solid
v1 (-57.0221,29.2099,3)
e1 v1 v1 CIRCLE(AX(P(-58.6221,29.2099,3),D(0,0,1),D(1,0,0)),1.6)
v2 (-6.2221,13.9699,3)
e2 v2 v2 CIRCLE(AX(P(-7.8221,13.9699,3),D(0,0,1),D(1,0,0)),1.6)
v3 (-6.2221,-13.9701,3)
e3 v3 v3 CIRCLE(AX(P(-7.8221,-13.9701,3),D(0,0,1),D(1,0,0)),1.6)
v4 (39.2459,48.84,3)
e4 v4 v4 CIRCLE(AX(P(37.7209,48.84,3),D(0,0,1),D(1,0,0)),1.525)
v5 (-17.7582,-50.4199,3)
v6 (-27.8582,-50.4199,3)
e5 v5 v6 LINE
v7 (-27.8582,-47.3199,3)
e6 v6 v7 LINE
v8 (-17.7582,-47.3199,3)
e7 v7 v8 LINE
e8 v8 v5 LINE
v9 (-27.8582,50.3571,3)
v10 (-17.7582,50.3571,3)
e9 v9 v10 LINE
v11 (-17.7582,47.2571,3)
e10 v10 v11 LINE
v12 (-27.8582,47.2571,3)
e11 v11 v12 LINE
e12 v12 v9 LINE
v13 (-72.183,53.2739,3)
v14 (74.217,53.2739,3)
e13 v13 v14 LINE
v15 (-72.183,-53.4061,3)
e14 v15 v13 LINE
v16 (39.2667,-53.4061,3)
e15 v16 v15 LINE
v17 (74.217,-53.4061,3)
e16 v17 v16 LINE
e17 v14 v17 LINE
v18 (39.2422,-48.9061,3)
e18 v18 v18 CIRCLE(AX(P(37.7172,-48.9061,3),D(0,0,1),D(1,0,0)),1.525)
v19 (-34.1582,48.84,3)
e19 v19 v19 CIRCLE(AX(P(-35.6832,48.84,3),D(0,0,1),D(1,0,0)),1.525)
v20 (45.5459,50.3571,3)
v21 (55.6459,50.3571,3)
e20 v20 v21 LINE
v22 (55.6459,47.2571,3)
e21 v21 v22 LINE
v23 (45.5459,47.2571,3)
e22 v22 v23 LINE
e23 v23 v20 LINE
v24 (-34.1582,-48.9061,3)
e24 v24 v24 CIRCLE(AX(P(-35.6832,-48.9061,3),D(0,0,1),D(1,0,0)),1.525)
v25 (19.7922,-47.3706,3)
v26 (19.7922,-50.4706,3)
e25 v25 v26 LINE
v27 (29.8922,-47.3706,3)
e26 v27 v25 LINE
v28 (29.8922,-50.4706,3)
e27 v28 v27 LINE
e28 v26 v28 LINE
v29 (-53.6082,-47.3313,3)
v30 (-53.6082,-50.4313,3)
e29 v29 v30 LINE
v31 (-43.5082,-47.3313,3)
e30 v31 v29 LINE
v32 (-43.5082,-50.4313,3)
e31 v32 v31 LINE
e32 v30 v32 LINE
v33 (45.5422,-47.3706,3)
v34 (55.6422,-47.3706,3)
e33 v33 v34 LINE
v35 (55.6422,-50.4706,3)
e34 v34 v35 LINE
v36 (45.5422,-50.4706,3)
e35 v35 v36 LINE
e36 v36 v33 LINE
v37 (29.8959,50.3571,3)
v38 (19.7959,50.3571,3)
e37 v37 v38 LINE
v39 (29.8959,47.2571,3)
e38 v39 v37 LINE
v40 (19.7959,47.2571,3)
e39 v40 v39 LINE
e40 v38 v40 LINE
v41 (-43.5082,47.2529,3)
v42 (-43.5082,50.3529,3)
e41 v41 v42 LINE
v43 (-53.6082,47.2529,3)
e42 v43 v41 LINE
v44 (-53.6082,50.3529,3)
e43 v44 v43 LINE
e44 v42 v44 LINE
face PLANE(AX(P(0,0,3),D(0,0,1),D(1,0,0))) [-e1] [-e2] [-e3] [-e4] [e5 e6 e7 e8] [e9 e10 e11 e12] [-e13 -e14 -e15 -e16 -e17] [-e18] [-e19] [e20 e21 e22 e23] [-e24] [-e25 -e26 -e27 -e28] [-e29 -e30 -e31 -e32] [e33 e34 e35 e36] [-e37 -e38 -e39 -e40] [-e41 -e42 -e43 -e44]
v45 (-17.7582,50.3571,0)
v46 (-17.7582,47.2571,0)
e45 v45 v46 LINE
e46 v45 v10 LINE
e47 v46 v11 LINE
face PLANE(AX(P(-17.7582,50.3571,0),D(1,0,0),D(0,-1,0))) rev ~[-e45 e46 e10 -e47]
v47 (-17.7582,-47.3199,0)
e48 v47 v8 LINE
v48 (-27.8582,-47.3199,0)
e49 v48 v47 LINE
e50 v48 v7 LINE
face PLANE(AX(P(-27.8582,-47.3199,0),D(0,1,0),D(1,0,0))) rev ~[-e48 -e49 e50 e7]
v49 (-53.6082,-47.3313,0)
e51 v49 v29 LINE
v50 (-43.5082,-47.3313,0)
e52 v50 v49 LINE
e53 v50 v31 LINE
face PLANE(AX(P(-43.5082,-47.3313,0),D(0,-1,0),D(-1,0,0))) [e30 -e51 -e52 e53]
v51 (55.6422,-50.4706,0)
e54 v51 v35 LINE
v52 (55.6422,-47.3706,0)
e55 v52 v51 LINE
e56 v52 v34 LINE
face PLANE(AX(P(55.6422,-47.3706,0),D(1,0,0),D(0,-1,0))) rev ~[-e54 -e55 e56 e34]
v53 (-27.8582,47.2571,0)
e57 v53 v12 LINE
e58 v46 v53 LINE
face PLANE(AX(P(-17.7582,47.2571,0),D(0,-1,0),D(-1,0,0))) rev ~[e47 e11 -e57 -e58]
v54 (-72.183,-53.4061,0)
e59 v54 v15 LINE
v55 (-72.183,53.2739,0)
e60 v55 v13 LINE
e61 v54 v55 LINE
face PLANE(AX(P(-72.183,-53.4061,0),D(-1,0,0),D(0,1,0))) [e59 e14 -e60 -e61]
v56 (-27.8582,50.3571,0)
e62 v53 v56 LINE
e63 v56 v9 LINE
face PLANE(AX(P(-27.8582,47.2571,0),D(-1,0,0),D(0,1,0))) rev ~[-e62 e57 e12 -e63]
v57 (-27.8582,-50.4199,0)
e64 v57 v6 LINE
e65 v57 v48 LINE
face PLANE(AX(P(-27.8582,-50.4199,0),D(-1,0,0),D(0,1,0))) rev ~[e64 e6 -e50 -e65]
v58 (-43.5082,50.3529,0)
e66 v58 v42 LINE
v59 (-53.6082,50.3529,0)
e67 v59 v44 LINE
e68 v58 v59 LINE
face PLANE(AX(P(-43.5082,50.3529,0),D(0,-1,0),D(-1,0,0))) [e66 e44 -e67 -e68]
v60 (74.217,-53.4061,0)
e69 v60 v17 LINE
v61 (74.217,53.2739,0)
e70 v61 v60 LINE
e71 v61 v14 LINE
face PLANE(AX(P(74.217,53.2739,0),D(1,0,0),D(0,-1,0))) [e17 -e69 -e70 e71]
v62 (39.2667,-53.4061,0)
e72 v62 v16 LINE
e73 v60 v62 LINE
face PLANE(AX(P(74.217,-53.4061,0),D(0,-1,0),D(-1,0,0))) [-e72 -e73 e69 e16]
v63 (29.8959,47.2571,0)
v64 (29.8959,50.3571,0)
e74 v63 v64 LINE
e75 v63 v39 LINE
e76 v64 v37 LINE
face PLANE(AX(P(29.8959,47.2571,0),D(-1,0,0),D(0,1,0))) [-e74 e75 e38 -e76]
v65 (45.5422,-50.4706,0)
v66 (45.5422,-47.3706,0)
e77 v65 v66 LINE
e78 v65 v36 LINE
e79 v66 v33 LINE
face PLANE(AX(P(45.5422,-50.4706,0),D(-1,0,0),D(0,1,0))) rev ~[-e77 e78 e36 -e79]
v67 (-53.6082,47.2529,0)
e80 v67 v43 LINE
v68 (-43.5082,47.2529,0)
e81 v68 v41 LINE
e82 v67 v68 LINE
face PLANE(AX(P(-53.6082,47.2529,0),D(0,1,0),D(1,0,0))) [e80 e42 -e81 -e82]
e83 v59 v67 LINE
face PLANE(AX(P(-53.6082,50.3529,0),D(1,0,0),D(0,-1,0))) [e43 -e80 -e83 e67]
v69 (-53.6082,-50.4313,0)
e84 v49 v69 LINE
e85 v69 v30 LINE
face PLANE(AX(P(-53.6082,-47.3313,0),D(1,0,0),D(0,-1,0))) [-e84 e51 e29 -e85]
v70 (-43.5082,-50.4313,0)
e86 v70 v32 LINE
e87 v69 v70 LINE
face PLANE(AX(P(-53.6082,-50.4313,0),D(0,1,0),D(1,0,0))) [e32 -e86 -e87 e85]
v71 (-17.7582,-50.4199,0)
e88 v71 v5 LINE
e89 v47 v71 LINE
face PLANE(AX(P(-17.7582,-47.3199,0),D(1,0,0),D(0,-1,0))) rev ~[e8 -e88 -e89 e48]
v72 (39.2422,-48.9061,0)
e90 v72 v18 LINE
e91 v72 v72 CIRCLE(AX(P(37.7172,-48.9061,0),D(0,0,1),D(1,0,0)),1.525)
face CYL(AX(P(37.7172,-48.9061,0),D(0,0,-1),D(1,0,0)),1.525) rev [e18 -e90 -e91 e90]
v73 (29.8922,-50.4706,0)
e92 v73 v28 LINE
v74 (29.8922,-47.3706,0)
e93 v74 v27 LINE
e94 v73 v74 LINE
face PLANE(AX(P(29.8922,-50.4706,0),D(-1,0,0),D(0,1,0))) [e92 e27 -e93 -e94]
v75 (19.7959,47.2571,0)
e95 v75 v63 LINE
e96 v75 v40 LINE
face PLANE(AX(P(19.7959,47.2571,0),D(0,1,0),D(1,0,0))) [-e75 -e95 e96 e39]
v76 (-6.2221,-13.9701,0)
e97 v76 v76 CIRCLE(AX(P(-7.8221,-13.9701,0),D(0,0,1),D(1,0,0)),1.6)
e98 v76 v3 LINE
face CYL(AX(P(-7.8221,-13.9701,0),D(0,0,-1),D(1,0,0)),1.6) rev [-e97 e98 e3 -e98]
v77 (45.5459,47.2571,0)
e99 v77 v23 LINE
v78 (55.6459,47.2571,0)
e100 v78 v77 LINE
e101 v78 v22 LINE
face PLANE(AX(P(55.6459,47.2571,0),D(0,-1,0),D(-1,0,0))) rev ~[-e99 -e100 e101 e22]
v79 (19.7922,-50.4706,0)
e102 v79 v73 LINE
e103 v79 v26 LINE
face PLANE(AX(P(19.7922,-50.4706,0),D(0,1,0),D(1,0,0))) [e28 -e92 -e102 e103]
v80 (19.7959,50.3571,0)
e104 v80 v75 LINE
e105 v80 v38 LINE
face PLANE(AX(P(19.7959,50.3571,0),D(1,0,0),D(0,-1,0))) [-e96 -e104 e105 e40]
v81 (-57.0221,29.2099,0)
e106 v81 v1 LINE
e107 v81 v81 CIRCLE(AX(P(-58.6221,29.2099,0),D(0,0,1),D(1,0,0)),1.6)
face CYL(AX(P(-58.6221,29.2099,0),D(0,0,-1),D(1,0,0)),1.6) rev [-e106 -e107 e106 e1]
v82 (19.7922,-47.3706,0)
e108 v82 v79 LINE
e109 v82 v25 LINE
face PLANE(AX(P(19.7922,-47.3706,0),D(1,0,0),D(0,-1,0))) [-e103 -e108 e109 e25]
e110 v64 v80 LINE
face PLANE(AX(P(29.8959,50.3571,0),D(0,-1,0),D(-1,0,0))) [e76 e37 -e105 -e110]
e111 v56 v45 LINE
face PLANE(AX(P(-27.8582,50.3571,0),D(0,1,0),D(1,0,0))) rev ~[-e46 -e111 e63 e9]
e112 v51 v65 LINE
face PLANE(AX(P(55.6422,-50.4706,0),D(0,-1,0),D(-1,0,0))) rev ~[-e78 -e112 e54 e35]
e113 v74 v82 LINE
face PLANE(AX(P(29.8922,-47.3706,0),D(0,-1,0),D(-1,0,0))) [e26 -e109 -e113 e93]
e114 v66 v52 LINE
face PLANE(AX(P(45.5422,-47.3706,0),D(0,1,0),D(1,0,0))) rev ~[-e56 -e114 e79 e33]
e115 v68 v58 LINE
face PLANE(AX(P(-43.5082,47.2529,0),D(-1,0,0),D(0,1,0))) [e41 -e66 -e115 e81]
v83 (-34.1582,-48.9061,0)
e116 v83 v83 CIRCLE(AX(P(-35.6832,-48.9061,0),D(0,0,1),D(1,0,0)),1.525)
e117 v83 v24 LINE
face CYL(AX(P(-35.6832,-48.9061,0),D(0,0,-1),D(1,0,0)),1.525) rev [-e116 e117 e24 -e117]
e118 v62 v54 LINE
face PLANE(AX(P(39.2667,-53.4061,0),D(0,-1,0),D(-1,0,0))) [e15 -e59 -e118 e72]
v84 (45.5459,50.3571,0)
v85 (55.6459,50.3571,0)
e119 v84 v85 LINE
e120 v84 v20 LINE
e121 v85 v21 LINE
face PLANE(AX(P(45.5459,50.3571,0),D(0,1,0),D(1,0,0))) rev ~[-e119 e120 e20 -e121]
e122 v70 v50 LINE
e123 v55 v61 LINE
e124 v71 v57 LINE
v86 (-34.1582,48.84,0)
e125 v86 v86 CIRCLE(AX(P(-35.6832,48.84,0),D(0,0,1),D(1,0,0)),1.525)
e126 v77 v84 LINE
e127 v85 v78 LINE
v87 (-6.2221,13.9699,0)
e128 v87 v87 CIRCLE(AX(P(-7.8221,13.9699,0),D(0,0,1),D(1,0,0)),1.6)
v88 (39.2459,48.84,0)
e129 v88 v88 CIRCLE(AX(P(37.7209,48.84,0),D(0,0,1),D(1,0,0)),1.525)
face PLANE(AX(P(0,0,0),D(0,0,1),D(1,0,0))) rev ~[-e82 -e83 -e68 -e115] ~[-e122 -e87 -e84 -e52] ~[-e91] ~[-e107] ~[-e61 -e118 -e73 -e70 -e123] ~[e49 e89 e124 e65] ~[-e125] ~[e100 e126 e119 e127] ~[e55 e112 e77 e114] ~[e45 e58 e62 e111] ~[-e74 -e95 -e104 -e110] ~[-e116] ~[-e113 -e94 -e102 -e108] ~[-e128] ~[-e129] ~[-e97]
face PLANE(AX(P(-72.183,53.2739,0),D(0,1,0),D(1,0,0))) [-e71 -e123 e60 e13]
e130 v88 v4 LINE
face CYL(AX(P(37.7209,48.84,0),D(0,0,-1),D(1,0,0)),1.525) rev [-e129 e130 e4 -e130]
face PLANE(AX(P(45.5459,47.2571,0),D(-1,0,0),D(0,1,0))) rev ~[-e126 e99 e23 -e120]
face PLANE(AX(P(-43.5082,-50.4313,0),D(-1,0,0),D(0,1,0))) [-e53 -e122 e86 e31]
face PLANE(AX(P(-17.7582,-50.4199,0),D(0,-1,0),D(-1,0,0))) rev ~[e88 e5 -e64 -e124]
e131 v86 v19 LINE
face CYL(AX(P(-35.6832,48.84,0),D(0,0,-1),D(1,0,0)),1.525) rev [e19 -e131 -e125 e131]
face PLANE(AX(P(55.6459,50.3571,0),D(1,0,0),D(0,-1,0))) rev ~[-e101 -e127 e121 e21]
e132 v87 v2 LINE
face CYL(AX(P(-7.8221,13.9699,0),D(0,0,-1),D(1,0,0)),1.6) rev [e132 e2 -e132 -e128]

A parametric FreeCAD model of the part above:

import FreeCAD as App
import Part
import Sketcher
from FreeCAD import Vector
Q = App.Units.Quantity

doc = App.newDocument("Part")
body = doc.addObject("PartDesign::Body", "Body")

sketch1 = body.newObject("Sketcher::SketchObject", "Sketch")
sketch1.AttachmentSupport = (doc.getObject("XY_Plane"), [""])
sketch1.MapMode = "FlatFace"
sketch1.addGeometry([
    Part.LineSegment(Vector(74.2, -53.4, 0), Vector(74.2, 53.3, 0)),
    Part.LineSegment(Vector(74.2, 53.3, 0), Vector(-72.2, 53.3, 0)),
    Part.LineSegment(Vector(-72.2, 53.3, 0), Vector(-72.2, -53.4, 0)),
    Part.LineSegment(Vector(-72.2, -53.4, 0), Vector(74.2, -53.4, 0)),
    Part.LineSegment(Vector(-53.6, -47.3, 0), Vector(-43.5, -47.3, 0)),
    Part.LineSegment(Vector(-43.5, -47.3, 0), Vector(-43.5, -50.4, 0)),
    Part.LineSegment(Vector(-43.5, -50.4, 0), Vector(-53.6, -50.4, 0)),
    Part.LineSegment(Vector(-53.6, -50.4, 0), Vector(-53.6, -47.3, 0)),
    Part.Circle(Vector(-35.7, -48.9, 0), Vector(0, 0, 1), 1.5),
    Part.LineSegment(Vector(-27.9, -50.4, 0), Vector(-27.9, -47.3, 0)),
    Part.LineSegment(Vector(-27.9, -47.3, 0), Vector(-17.8, -47.3, 0)),
    Part.LineSegment(Vector(-17.8, -47.3, 0), Vector(-17.8, -50.4, 0)),
    Part.LineSegment(Vector(-17.8, -50.4, 0), Vector(-27.9, -50.4, 0)),
    Part.Circle(Vector(-7.8, -14, 0), Vector(0, 0, 1), 1.6),
    Part.LineSegment(Vector(19.8, -47.4, 0), Vector(29.9, -47.4, 0)),
    Part.LineSegment(Vector(29.9, -47.4, 0), Vector(29.9, -50.5, 0)),
    Part.LineSegment(Vector(29.9, -50.5, 0), Vector(19.8, -50.5, 0)),
    Part.LineSegment(Vector(19.8, -50.5, 0), Vector(19.8, -47.4, 0)),
    Part.Circle(Vector(37.7, -48.9, 0), Vector(0, 0, 1), 1.5),
    Part.LineSegment(Vector(45.5, -50.5, 0), Vector(45.5, -47.4, 0)),
    Part.LineSegment(Vector(45.5, -47.4, 0), Vector(55.6, -47.4, 0)),
    Part.LineSegment(Vector(55.6, -47.4, 0), Vector(55.6, -50.5, 0)),
    Part.LineSegment(Vector(55.6, -50.5, 0), Vector(45.5, -50.5, 0)),
    Part.Circle(Vector(-7.8, 14, 0), Vector(0, 0, 1), 1.6),
    Part.Circle(Vector(-58.6, 29.2, 0), Vector(0, 0, 1), 1.6),
    Part.LineSegment(Vector(-53.6, 50.4, 0), Vector(-43.5, 50.4, 0)),
    Part.LineSegment(Vector(-43.5, 50.4, 0), Vector(-43.5, 47.3, 0)),
    Part.LineSegment(Vector(-43.5, 47.3, 0), Vector(-53.6, 47.3, 0)),
    Part.LineSegment(Vector(-53.6, 47.3, 0), Vector(-53.6, 50.4, 0)),
    Part.Circle(Vector(-35.7, 48.8, 0), Vector(0, 0, 1), 1.5),
    Part.LineSegment(Vector(-27.9, 47.3, 0), Vector(-27.9, 50.4, 0)),
    Part.LineSegment(Vector(-27.9, 50.4, 0), Vector(-17.8, 50.4, 0)),
    Part.LineSegment(Vector(-17.8, 50.4, 0), Vector(-17.8, 47.3, 0)),
    Part.LineSegment(Vector(-17.8, 47.3, 0), Vector(-27.9, 47.3, 0)),
    Part.LineSegment(Vector(19.8, 50.4, 0), Vector(29.9, 50.4, 0)),
    Part.LineSegment(Vector(29.9, 50.4, 0), Vector(29.9, 47.3, 0)),
    Part.LineSegment(Vector(29.9, 47.3, 0), Vector(19.8, 47.3, 0)),
    Part.LineSegment(Vector(19.8, 47.3, 0), Vector(19.8, 50.4, 0)),
    Part.Circle(Vector(37.7, 48.8, 0), Vector(0, 0, 1), 1.5),
    Part.LineSegment(Vector(45.5, 47.3, 0), Vector(45.5, 50.4, 0)),
    Part.LineSegment(Vector(45.5, 50.4, 0), Vector(55.6, 50.4, 0)),
    Part.LineSegment(Vector(55.6, 50.4, 0), Vector(55.6, 47.3, 0)),
    Part.LineSegment(Vector(55.6, 47.3, 0), Vector(45.5, 47.3, 0)),
], False)
sketch1.addConstraint([
    Sketcher.Constraint("Coincident", 0, 2, 1, 1),
    Sketcher.Constraint("Coincident", 1, 2, 2, 1),
    Sketcher.Constraint("Coincident", 2, 2, 3, 1),
    Sketcher.Constraint("Coincident", 3, 2, 0, 1),
    Sketcher.Constraint("Coincident", 4, 2, 5, 1),
    Sketcher.Constraint("Coincident", 5, 2, 6, 1),
    Sketcher.Constraint("Coincident", 6, 2, 7, 1),
    Sketcher.Constraint("Coincident", 7, 2, 4, 1),
    Sketcher.Constraint("Coincident", 9, 2, 10, 1),
    Sketcher.Constraint("Coincident", 10, 2, 11, 1),
    Sketcher.Constraint("Coincident", 11, 2, 12, 1),
    Sketcher.Constraint("Coincident", 12, 2, 9, 1),
    Sketcher.Constraint("Coincident", 14, 2, 15, 1),
    Sketcher.Constraint("Coincident", 15, 2, 16, 1),
    Sketcher.Constraint("Coincident", 16, 2, 17, 1),
    Sketcher.Constraint("Coincident", 17, 2, 14, 1),
    Sketcher.Constraint("Coincident", 19, 2, 20, 1),
    Sketcher.Constraint("Coincident", 20, 2, 21, 1),
    Sketcher.Constraint("Coincident", 21, 2, 22, 1),
    Sketcher.Constraint("Coincident", 22, 2, 19, 1),
    Sketcher.Constraint("Coincident", 25, 2, 26, 1),
    Sketcher.Constraint("Coincident", 26, 2, 27, 1),
    Sketcher.Constraint("Coincident", 27, 2, 28, 1),
    Sketcher.Constraint("Coincident", 28, 2, 25, 1),
    Sketcher.Constraint("Coincident", 30, 2, 31, 1),
    Sketcher.Constraint("Coincident", 31, 2, 32, 1),
    Sketcher.Constraint("Coincident", 32, 2, 33, 1),
    Sketcher.Constraint("Coincident", 33, 2, 30, 1),
    Sketcher.Constraint("Coincident", 34, 2, 35, 1),
    Sketcher.Constraint("Coincident", 35, 2, 36, 1),
    Sketcher.Constraint("Coincident", 36, 2, 37, 1),
    Sketcher.Constraint("Coincident", 37, 2, 34, 1),
    Sketcher.Constraint("Coincident", 39, 2, 40, 1),
    Sketcher.Constraint("Coincident", 40, 2, 41, 1),
    Sketcher.Constraint("Coincident", 41, 2, 42, 1),
    Sketcher.Constraint("Coincident", 42, 2, 39, 1),
    Sketcher.Constraint("Vertical", 0),
    Sketcher.Constraint("Horizontal", 1),
    Sketcher.Constraint("Vertical", 2),
    Sketcher.Constraint("Horizontal", 3),
    Sketcher.Constraint("Horizontal", 4),
    Sketcher.Constraint("Vertical", 5),
    Sketcher.Constraint("Horizontal", 6),
    Sketcher.Constraint("Vertical", 7),
    Sketcher.Constraint("Vertical", 9),
    Sketcher.Constraint("Horizontal", 10),
    Sketcher.Constraint("Vertical", 11),
    Sketcher.Constraint("Horizontal", 12),
    Sketcher.Constraint("Horizontal", 14),
    Sketcher.Constraint("Vertical", 15),
    Sketcher.Constraint("Horizontal", 16),
    Sketcher.Constraint("Vertical", 17),
    Sketcher.Constraint("Vertical", 19),
    Sketcher.Constraint("Horizontal", 20),
    Sketcher.Constraint("Vertical", 21),
    Sketcher.Constraint("Horizontal", 22),
    Sketcher.Constraint("Horizontal", 25),
    Sketcher.Constraint("Vertical", 26),
    Sketcher.Constraint("Horizontal", 27),
    Sketcher.Constraint("Vertical", 28),
    Sketcher.Constraint("Vertical", 30),
    Sketcher.Constraint("Horizontal", 31),
    Sketcher.Constraint("Vertical", 32),
    Sketcher.Constraint("Horizontal", 33),
    Sketcher.Constraint("Horizontal", 34),
    Sketcher.Constraint("Vertical", 35),
    Sketcher.Constraint("Horizontal", 36),
    Sketcher.Constraint("Vertical", 37),
    Sketcher.Constraint("Vertical", 39),
    Sketcher.Constraint("Horizontal", 40),
    Sketcher.Constraint("Vertical", 41),
    Sketcher.Constraint("Horizontal", 42),
    Sketcher.Constraint("Equal", 8, 18),
    Sketcher.Constraint("Equal", 13, 23),
    Sketcher.Constraint("Equal", 23, 24),
    Sketcher.Constraint("Equal", 18, 29),
    Sketcher.Constraint("Equal", 29, 38),
    Sketcher.Constraint("Symmetric", 13, 3, 23, 3, -1),
    Sketcher.Constraint("Horizontal", 8, 3, 18, 3),
    Sketcher.Constraint("Horizontal", 29, 3, 38, 3),
    Sketcher.Constraint("Horizontal", 17, 2, 19, 2),
    Sketcher.Constraint("Horizontal", 16, 2, 21, 2),
    Sketcher.Constraint("Horizontal", 31, 2, 34, 2),
    Sketcher.Constraint("Horizontal", 33, 2, 35, 2),
    Sketcher.Constraint("Horizontal", 37, 2, 39, 2),
    Sketcher.Constraint("Horizontal", 36, 2, 41, 2),
    Sketcher.Constraint("Vertical", 8, 3, 29, 3),
    Sketcher.Constraint("Vertical", 5, 2, 25, 2),
    Sketcher.Constraint("Vertical", 7, 2, 27, 2),
    Sketcher.Constraint("Vertical", 12, 2, 30, 2),
    Sketcher.Constraint("Vertical", 11, 2, 31, 2),
    Sketcher.Constraint("Equal", 6, 10),
    Sketcher.Constraint("Equal", 12, 14),
    Sketcher.Constraint("Equal", 16, 20),
    Sketcher.Constraint("Equal", 33, 34),
    Sketcher.Constraint("Equal", 36, 40),
    Sketcher.Constraint("Equal", 7, 9),
    Sketcher.Constraint("Equal", 11, 15),
    Sketcher.Constraint("Equal", 21, 26),
    Sketcher.Constraint("Equal", 28, 30),
    Sketcher.Constraint("Diameter", 13, Q("3.2 mm")),
    Sketcher.Constraint("Diameter", 8, Q("3.05 mm")),
    Sketcher.Constraint("DistanceX", 1, 2, 1, 1, Q("146.4 mm")),
    Sketcher.Constraint("DistanceX", 4, 1, 4, 2, Q("10.1 mm")),
    Sketcher.Constraint("DistanceY", 5, 2, 5, 1, Q("3.1 mm")),
    Sketcher.Constraint("DistanceY", 0, 1, 0, 2, Q("106.68 mm")),
    Sketcher.Constraint("DistanceY", 13, 3, 23, 3, Q("27.94 mm")),
    Sketcher.Constraint("DistanceX", 38, 3, 0, 2, Q("36.496 mm")),
    Sketcher.Constraint("DistanceY", 25, 2, 1, 2, Q("2.921 mm")),
    Sketcher.Constraint("DistanceX", 24, 3, 23, 3, Q("50.8 mm")),
    Sketcher.Constraint("DistanceX", 18, 3, 0, 2, Q("36.4998 mm")),
    Sketcher.Constraint("DistanceX", 1, 2, 29, 3, Q("36.4998 mm")),
    Sketcher.Constraint("DistanceY", 2, 2, 8, 3, Q("4.5 mm")),
    Sketcher.Constraint("DistanceY", 3, 2, 15, 2, Q("2.9355 mm")),
    Sketcher.Constraint("DistanceY", 34, 2, 0, 2, Q("2.9168 mm")),
    Sketcher.Constraint("DistanceY", -1, 1, 24, 3, Q("29.21 mm")),
    Sketcher.Constraint("DistanceY", -1, 1, 29, 3, Q("48.84 mm")),
    Sketcher.Constraint("DistanceY", 9, 2, -1, 1, Q("47.32 mm")),
    Sketcher.Constraint("DistanceX", 4, 2, 9, 2, Q("15.65 mm")),
    Sketcher.Constraint("DistanceX", 14, 2, 19, 2, Q("15.65 mm")),
    Sketcher.Constraint("DistanceX", 34, 2, 39, 2, Q("15.65 mm")),
    Sketcher.Constraint("DistanceY", 8, 3, -1, 1, Q("48.906 mm")),
    Sketcher.Constraint("DistanceX", 13, 3, -1, 1, Q("7.822 mm")),
    Sketcher.Constraint("DistanceX", -1, 1, 38, 3, Q("37.721 mm")),
    Sketcher.Constraint("DistanceX", -1, 1, 34, 2, Q("29.896 mm")),
    Sketcher.Constraint("DistanceX", 4, 2, 8, 3, Q("7.825 mm")),
    Sketcher.Constraint("DistanceX", 14, 2, 18, 3, Q("7.825 mm")),
    Sketcher.Constraint("DistanceY", 4, 2, -1, 1, Q("47.3313 mm")),
])
pad1 = body.newObject("PartDesign::Pad", "Pad")
pad1.Profile = sketch1
pad1.Length = 3

doc.recompute()
